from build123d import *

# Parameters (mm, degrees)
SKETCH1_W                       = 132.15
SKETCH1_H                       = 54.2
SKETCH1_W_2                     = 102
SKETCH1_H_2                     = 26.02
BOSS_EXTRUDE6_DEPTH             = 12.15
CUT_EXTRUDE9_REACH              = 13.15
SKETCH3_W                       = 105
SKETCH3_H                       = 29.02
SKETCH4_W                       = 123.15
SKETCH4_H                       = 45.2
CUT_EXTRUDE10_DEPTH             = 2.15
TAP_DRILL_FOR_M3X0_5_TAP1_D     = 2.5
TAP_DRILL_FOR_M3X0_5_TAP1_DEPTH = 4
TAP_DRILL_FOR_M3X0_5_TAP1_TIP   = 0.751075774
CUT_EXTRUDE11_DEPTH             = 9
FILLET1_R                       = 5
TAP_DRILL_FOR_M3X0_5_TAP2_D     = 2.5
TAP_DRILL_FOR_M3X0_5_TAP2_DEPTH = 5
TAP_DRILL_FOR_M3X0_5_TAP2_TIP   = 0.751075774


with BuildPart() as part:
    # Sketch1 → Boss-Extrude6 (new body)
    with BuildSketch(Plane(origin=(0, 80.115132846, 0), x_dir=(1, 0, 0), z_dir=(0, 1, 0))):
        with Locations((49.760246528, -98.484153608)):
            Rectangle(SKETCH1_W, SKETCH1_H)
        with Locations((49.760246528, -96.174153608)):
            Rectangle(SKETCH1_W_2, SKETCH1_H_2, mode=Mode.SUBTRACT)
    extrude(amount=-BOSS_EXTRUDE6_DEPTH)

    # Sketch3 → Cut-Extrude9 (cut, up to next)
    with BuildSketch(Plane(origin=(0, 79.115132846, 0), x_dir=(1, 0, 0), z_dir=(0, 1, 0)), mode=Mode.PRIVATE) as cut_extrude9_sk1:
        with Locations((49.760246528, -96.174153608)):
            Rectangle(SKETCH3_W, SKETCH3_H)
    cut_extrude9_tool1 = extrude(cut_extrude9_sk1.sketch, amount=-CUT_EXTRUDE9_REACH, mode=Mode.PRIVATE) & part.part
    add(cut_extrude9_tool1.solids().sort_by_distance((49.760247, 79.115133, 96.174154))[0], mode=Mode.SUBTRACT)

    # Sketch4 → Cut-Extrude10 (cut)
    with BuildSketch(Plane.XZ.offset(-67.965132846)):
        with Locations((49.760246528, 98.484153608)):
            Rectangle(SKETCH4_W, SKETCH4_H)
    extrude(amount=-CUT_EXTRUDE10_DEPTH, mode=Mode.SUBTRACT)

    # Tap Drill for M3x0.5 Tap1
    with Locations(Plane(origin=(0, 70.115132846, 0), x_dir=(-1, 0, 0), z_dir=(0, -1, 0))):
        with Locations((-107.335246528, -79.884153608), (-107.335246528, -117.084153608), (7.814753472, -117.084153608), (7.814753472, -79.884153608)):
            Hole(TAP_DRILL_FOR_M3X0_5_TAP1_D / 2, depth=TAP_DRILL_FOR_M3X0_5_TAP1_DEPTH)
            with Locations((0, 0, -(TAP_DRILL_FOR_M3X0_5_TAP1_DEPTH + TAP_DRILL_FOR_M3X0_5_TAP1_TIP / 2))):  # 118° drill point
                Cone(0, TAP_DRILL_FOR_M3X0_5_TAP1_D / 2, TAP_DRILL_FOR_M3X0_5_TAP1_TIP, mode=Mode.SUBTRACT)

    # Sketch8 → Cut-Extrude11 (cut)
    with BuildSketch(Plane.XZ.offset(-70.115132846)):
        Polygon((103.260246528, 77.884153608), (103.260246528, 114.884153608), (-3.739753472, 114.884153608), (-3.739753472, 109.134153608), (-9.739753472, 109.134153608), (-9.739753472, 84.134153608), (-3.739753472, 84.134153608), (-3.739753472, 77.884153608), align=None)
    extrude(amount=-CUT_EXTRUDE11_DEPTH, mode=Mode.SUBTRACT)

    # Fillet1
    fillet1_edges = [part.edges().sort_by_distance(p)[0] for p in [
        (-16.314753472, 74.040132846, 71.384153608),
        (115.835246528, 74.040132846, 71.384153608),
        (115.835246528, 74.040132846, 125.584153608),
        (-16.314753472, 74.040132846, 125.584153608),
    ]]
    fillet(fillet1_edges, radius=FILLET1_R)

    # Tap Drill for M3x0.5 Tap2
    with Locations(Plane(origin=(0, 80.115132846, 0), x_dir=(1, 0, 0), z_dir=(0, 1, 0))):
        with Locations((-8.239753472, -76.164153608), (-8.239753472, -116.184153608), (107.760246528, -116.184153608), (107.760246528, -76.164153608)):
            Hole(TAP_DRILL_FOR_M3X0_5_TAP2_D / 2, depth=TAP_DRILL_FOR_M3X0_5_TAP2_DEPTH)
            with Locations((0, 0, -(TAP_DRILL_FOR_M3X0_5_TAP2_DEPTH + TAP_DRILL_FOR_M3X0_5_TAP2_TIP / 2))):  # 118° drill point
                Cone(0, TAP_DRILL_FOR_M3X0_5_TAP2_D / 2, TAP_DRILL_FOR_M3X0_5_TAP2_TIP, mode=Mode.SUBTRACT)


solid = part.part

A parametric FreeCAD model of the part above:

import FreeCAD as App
import Part
import Sketcher
from FreeCAD import Vector


def edges_at(feature, points):
    """Names of the edges that pass closest to the given points."""
    edges = feature.Shape.Edges
    near = lambda p: min(range(len(edges)), key=lambda i: edges[i].distToShape(Part.Vertex(*p))[0])
    return sorted({f"Edge{near(p) + 1}" for p in points})


def add_polygon(sketch, points):
    """Adds a closed chain of lines whose ends are joined by coincident constraints."""
    first, n = sketch.GeometryCount, len(points)
    for a, b in zip(points, points[1:] + points[:1]):
        sketch.addGeometry(Part.LineSegment(App.Vector(*a, 0), App.Vector(*b, 0)), False)
    for i in range(n):
        sketch.addConstraint(Sketcher.Constraint("Coincident", first + i, 2, first + (i + 1) % n, 1))

doc = App.newDocument("Part")
body = doc.addObject("PartDesign::Body", "Body")

sketch1 = body.newObject("Sketcher::SketchObject", "Sketch")
sketch1.AttachmentSupport = (doc.getObject("XZ_Plane"), [""])
sketch1.MapMode = "FlatFace"
sketch1.AttachmentOffset = App.Placement(Vector(0, 0, -80.115133), App.Rotation())
add_polygon(sketch1, [(-16, 71), (-16, 126), (116, 126), (116, 71)])
add_polygon(sketch1, [(101, 109), (-1, 109), (-1, 83), (101, 83)])
sketch1.addConstraint(Sketcher.Constraint("Vertical", 0))
sketch1.addConstraint(Sketcher.Constraint("Horizontal", 1))
sketch1.addConstraint(Sketcher.Constraint("Vertical", 2))
sketch1.addConstraint(Sketcher.Constraint("Horizontal", 3))
sketch1.addConstraint(Sketcher.Constraint("Horizontal", 4))
sketch1.addConstraint(Sketcher.Constraint("Vertical", 5))
sketch1.addConstraint(Sketcher.Constraint("Horizontal", 6))
sketch1.addConstraint(Sketcher.Constraint("Vertical", 7))
sketch1.addConstraint(Sketcher.Constraint("DistanceX", 4, 2, 4, 1, 102.0))
sketch1.addConstraint(Sketcher.Constraint("DistanceY", 0, 1, 0, 2, 54.2))
sketch1.addConstraint(Sketcher.Constraint("DistanceX", 1, 1, 1, 2, 132.15))
sketch1.addConstraint(Sketcher.Constraint("DistanceY", 5, 2, 5, 1, 26.02))
sketch1.addConstraint(Sketcher.Constraint("DistanceY", 4, 2, 0, 2, 16.4))
sketch1.addConstraint(Sketcher.Constraint("DistanceX", 0, 2, 4, 2, 15.075))
sketch1.addConstraint(Sketcher.Constraint("DistanceX", 0, 2, -1, 1, 16.314753))
sketch1.addConstraint(Sketcher.Constraint("DistanceY", -1, 1, 0, 2, 125.584154))
pad1 = body.newObject("PartDesign::Pad", "Pad")
pad1.Profile = sketch1
pad1.Length = 12.15

sketch2 = body.newObject("Sketcher::SketchObject", "Sketch001")
sketch2.AttachmentSupport = (doc.getObject("XZ_Plane"), [""])
sketch2.MapMode = "FlatFace"
sketch2.AttachmentOffset = App.Placement(Vector(0, 0, -79.115133), App.Rotation())
add_polygon(sketch2, [(-3, 82), (-3, 111), (102, 111), (102, 82)])
sketch2.addConstraint(Sketcher.Constraint("Vertical", 0))
sketch2.addConstraint(Sketcher.Constraint("Horizontal", 1))
sketch2.addConstraint(Sketcher.Constraint("Vertical", 2))
sketch2.addConstraint(Sketcher.Constraint("Horizontal", 3))
sketch2.addConstraint(Sketcher.Constraint("DistanceX", 1, 1, 1, 2, 105.0))
sketch2.addConstraint(Sketcher.Constraint("DistanceY", 0, 1, 0, 2, 29.02))
sketch2.addConstraint(Sketcher.Constraint("DistanceX", 0, 2, -1, 1, 2.739753))
sketch2.addConstraint(Sketcher.Constraint("DistanceY", -1, 1, 0, 2, 110.684154))
pocket1 = body.newObject("PartDesign::Pocket", "Pocket")
pocket1.Profile = sketch2
pocket1.Length = 11.15
pocket1.Reversed = True

sketch3 = body.newObject("Sketcher::SketchObject", "Sketch002")
sketch3.AttachmentSupport = (doc.getObject("XZ_Plane"), [""])
sketch3.MapMode = "FlatFace"
sketch3.AttachmentOffset = App.Placement(Vector(0, 0, -67.965133), App.Rotation())
add_polygon(sketch3, [(-12, 121), (-12, 76), (111, 76), (111, 121)])
sketch3.addConstraint(Sketcher.Constraint("Vertical", 0))
sketch3.addConstraint(Sketcher.Constraint("Horizontal", 1))
sketch3.addConstraint(Sketcher.Constraint("Vertical", 2))
sketch3.addConstraint(Sketcher.Constraint("Horizontal", 3))
sketch3.addConstraint(Sketcher.Constraint("DistanceY", 0, 2, 0, 1, 45.2))
sketch3.addConstraint(Sketcher.Constraint("DistanceX", 1, 1, 1, 2, 123.15))
sketch3.addConstraint(Sketcher.Constraint("DistanceX", 0, 2, -1, 1, 11.814753))
sketch3.addConstraint(Sketcher.Constraint("DistanceY", -1, 1, 0, 2, 75.884154))
pocket2 = body.newObject("PartDesign::Pocket", "Pocket001")
pocket2.Profile = sketch3
pocket2.Length = 2.15

sketch4 = body.newObject("Sketcher::SketchObject", "Sketch003")
sketch4.AttachmentSupport = (doc.getObject("XZ_Plane"), [""])
sketch4.MapMode = "FlatFace"
sketch4.AttachmentOffset = App.Placement(Vector(0, 0, -70.115133), App.Rotation())
sketch4.addGeometry(Part.Circle(Vector(107.3, 79.9, 0), Vector(0, 0, 1), 1.2), False)
sketch4.addGeometry(Part.Circle(Vector(107.3, 117.1, 0), Vector(0, 0, 1), 1.2), False)
sketch4.addGeometry(Part.Circle(Vector(-7.8, 117.1, 0), Vector(0, 0, 1), 1.2), False)
sketch4.addGeometry(Part.Circle(Vector(-7.8, 79.9, 0), Vector(0, 0, 1), 1.2), False)
sketch4.addConstraint(Sketcher.Constraint("Equal", 0, 1))
sketch4.addConstraint(Sketcher.Constraint("Equal", 1, 2))
sketch4.addConstraint(Sketcher.Constraint("Equal", 2, 3))
sketch4.addConstraint(Sketcher.Constraint("Horizontal", 1, 3, 2, 3))
sketch4.addConstraint(Sketcher.Constraint("Horizontal", 0, 3, 3, 3))
sketch4.addConstraint(Sketcher.Constraint("Vertical", 0, 3, 1, 3))
sketch4.addConstraint(Sketcher.Constraint("Vertical", 2, 3, 3, 3))
sketch4.addConstraint(Sketcher.Constraint("Diameter", 0, 2.5))
sketch4.addConstraint(Sketcher.Constraint("DistanceY", 0, 3, 1, 3, 37.2))
sketch4.addConstraint(Sketcher.Constraint("DistanceX", 2, 3, 1, 3, 115.15))
sketch4.addConstraint(Sketcher.Constraint("DistanceX", -1, 1, 0, 3, 107.335247))
sketch4.addConstraint(Sketcher.Constraint("DistanceY", -1, 1, 0, 3, 79.884154))
doc.recompute()
hole = body.newObject("PartDesign::Hole", "Hole")
hole.Profile = sketch4
hole.ThreadType = "None"
hole.Diameter = 2.5
hole.DepthType = "Dimension"
hole.Depth = 4
hole.DrillPoint = "Angled"
hole.DrillPointAngle = 118

sketch5 = body.newObject("Sketcher::SketchObject", "Sketch004")
sketch5.AttachmentSupport = (doc.getObject("XZ_Plane"), [""])
sketch5.MapMode = "FlatFace"
sketch5.AttachmentOffset = App.Placement(Vector(0, 0, -70.115133), App.Rotation())
add_polygon(sketch5, [(103, 78), (103, 115), (-4, 115), (-4, 109), (-10, 109), (-10, 84), (-4, 84), (-4, 78)])
sketch5.addConstraint(Sketcher.Constraint("Vertical", 0))
sketch5.addConstraint(Sketcher.Constraint("Horizontal", 1))
sketch5.addConstraint(Sketcher.Constraint("Vertical", 2))
sketch5.addConstraint(Sketcher.Constraint("Horizontal", 3))
sketch5.addConstraint(Sketcher.Constraint("Vertical", 4))
sketch5.addConstraint(Sketcher.Constraint("Horizontal", 5))
sketch5.addConstraint(Sketcher.Constraint("Vertical", 6))
sketch5.addConstraint(Sketcher.Constraint("Horizontal", 7))
sketch5.addConstraint(Sketcher.Constraint("Vertical", 2, 2, 5, 2))
sketch5.addConstraint(Sketcher.Constraint("DistanceX", 1, 2, 1, 1, 107.0))
sketch5.addConstraint(Sketcher.Constraint("DistanceX", 3, 2, 3, 1, 6.0))
sketch5.addConstraint(Sketcher.Constraint("DistanceY", 0, 1, 0, 2, 37.0))
sketch5.addConstraint(Sketcher.Constraint("DistanceY", 4, 2, 4, 1, 25.0))
sketch5.addConstraint(Sketcher.Constraint("DistanceY", 2, 2, 2, 1, 5.75))
sketch5.addConstraint(Sketcher.Constraint("DistanceX", -1, 1, 0, 2, 103.260247))
sketch5.addConstraint(Sketcher.Constraint("DistanceY", -1, 1, 0, 2, 114.884154))
pocket3 = body.newObject("PartDesign::Pocket", "Pocket002")
pocket3.Profile = sketch5
pocket3.Length = 9
doc.recompute()

fillet = body.newObject("PartDesign::Fillet", "Fillet")
fillet.Base = (pocket3, edges_at(pocket3, [
    (-16.315, 74.04, 71.384),
    (115.835, 74.04, 71.384),
    (115.835, 74.04, 125.584),
    (-16.315, 74.04, 125.584),
]))
fillet.Radius = 5

sketch6 = body.newObject("Sketcher::SketchObject", "Sketch005")
sketch6.AttachmentSupport = (doc.getObject("XZ_Plane"), [""])
sketch6.MapMode = "FlatFace"
sketch6.AttachmentOffset = App.Placement(Vector(0, 0, -80.115133), App.Rotation())
sketch6.addGeometry(Part.Circle(Vector(-8.2, 76.2, 0), Vector(0, 0, 1), 1.2), False)
sketch6.addGeometry(Part.Circle(Vector(-8.2, 116.2, 0), Vector(0, 0, 1), 1.2), False)
sketch6.addGeometry(Part.Circle(Vector(107.8, 116.2, 0), Vector(0, 0, 1), 1.2), False)
sketch6.addGeometry(Part.Circle(Vector(107.8, 76.2, 0), Vector(0, 0, 1), 1.2), False)
sketch6.addConstraint(Sketcher.Constraint("Equal", 0, 1))
sketch6.addConstraint(Sketcher.Constraint("Equal", 1, 2))
sketch6.addConstraint(Sketcher.Constraint("Equal", 2, 3))
sketch6.addConstraint(Sketcher.Constraint("Horizontal", 1, 3, 2, 3))
sketch6.addConstraint(Sketcher.Constraint("Horizontal", 0, 3, 3, 3))
sketch6.addConstraint(Sketcher.Constraint("Vertical", 0, 3, 1, 3))
sketch6.addConstraint(Sketcher.Constraint("Vertical", 2, 3, 3, 3))
sketch6.addConstraint(Sketcher.Constraint("Diameter", 0, 2.5))
sketch6.addConstraint(Sketcher.Constraint("DistanceX", 1, 3, 2, 3, 116.0))
sketch6.addConstraint(Sketcher.Constraint("DistanceY", 0, 3, 1, 3, 40.02))
sketch6.addConstraint(Sketcher.Constraint("DistanceX", 0, 3, -1, 1, 8.239753))
sketch6.addConstraint(Sketcher.Constraint("DistanceY", -1, 1, 0, 3, 76.164154))
doc.recompute()
hole2 = body.newObject("PartDesign::Hole", "Hole001")
hole2.Profile = sketch6
hole2.ThreadType = "None"
hole2.Diameter = 2.5
hole2.DepthType = "Dimension"
hole2.Depth = 5
hole2.DrillPoint = "Angled"
hole2.DrillPointAngle = 118
hole2.Reversed = True

doc.recompute()
